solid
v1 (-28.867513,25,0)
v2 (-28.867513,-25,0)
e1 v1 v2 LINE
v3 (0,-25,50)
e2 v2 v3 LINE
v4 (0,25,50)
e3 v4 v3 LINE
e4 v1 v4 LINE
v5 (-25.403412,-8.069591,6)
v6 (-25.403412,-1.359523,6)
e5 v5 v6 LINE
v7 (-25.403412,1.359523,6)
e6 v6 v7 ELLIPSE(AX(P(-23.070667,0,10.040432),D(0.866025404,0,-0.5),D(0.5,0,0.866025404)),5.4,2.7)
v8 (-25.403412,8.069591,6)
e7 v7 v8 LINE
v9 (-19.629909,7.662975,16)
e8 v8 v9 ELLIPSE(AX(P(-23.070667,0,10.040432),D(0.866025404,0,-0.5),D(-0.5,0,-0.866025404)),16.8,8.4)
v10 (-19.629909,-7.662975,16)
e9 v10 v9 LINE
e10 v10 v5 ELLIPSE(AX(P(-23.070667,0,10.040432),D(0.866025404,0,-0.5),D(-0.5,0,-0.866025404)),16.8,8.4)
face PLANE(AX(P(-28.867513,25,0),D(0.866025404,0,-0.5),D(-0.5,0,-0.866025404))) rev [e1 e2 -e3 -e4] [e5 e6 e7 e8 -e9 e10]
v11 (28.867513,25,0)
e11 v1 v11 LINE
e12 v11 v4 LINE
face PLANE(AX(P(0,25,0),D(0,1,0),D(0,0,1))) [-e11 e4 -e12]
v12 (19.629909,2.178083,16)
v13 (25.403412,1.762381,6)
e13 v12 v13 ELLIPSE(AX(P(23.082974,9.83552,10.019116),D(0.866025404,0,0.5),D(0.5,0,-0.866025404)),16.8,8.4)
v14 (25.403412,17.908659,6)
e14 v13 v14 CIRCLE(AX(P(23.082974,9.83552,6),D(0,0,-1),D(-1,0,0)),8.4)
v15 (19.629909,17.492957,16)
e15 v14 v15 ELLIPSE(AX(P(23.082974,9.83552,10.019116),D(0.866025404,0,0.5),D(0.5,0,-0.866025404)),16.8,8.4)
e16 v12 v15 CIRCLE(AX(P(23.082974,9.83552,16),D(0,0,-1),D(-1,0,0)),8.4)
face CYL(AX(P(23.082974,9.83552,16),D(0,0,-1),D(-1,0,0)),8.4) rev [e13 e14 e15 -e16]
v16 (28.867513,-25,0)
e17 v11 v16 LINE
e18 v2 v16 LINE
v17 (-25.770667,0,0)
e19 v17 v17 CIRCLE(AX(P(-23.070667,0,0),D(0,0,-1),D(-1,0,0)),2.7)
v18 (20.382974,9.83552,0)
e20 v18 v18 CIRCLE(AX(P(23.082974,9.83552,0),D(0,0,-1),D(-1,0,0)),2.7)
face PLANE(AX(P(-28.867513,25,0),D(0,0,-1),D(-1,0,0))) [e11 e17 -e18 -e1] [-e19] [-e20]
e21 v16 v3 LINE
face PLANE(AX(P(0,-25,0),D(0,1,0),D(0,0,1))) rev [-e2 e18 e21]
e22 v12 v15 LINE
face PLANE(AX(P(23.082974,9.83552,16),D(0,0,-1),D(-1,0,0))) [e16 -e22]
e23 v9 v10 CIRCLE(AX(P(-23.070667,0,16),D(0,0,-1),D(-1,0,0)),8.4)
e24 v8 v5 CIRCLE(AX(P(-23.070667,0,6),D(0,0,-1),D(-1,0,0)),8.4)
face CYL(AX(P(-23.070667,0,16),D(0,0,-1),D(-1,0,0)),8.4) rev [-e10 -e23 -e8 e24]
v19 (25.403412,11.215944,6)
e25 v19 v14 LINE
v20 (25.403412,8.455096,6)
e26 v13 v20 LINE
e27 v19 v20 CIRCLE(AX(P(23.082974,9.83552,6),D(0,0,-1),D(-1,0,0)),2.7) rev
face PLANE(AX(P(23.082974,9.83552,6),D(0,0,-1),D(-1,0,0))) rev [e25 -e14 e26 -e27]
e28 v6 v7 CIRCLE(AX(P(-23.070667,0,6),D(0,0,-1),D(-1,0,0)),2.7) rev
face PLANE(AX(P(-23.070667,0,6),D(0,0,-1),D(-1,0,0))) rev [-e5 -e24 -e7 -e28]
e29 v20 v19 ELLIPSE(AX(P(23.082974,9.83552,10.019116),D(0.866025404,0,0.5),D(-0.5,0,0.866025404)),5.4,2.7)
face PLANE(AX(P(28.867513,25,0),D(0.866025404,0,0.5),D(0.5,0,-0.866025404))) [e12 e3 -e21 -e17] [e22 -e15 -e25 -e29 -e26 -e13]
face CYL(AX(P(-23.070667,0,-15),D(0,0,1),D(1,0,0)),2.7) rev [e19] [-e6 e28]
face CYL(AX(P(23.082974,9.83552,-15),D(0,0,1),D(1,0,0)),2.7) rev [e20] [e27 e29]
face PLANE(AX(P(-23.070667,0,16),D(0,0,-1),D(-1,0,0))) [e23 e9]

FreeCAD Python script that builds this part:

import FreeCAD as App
import Part
import Sketcher

V = App.Vector
Q = App.Units.Quantity

doc = App.newDocument("Part")
params = doc.addObject("Spreadsheet::Sheet", "Params")
for row, (alias, value) in enumerate([
    ("pad1_length", "50 mm"),
    ("sketch2_diameter", "5.4 mm"),
    ("pocket1_length", "30 mm"),
    ("sketch3_diameter", "16.8 mm"),
    ("pocket2_length", "10 mm"),
], start=1):
    params.set(f"A{row}", alias)
    params.set(f"B{row}", "=" + value)
    params.setAlias(f"B{row}", alias)

body = doc.addObject("PartDesign::Body", "Body")

# Sketch on XZ plane
sketch1 = doc.addObject("Sketcher::SketchObject", "Sketch")
body.addObject(sketch1)
sketch1.AttachmentSupport = (doc.XZ_Plane, [""])
sketch1.MapMode = "FlatFace"
sketch1.addGeometry(Part.LineSegment(V(29, 0, 0), V(-29, 0, 0)), False)
sketch1.addGeometry(Part.LineSegment(V(-29, 0, 0), V(0, 50, 0)), False)
sketch1.addGeometry(Part.LineSegment(V(0, 50, 0), V(29, 0, 0)), False)
sketch1.addConstraint(Sketcher.Constraint("Coincident", 0, 2, 1, 1))
sketch1.addConstraint(Sketcher.Constraint("Coincident", 1, 2, 2, 1))
sketch1.addConstraint(Sketcher.Constraint("Coincident", 2, 2, 0, 1))
sketch1.addConstraint(Sketcher.Constraint("Horizontal", 0))
sketch1.addConstraint(Sketcher.Constraint("Symmetric", 0, 2, 2, 2, -1, 1))
sketch1.addConstraint(Sketcher.Constraint("PointOnObject", 1, 2, -2))
sketch1.addConstraint(Sketcher.Constraint("Angle", 1, Q("60 deg")))
sketch1.addConstraint(Sketcher.Constraint("DistanceY", -1, 1, 1, 2, 50.0))
pad1 = doc.addObject("PartDesign::Pad", "Pad")
body.addObject(pad1)
pad1.Profile = sketch1
pad1.setExpression("Length", "Params.pad1_length")
pad1.Midplane = True

# Sketch on XY plane
sketch2 = doc.addObject("Sketcher::SketchObject", "Sketch001")
body.addObject(sketch2)
sketch2.AttachmentSupport = (doc.XY_Plane, [""])
sketch2.MapMode = "FlatFace"
sketch2.addGeometry(Part.Circle(V(-23.1, 0, 0), V(0, 0, 1), 2.7), False)
sketch2.addGeometry(Part.Circle(V(23.1, 9.8, 0), V(0, 0, 1), 2.7), False)
sketch2.addConstraint(Sketcher.Constraint("Equal", 0, 1))
sketch2.addConstraint(Sketcher.Constraint("PointOnObject", 0, 3, -1))
sketch2.addConstraint(Sketcher.Constraint("Diameter", 0, 5.4))
sketch2.addConstraint(Sketcher.Constraint("DistanceY", -1, 1, 1, 3, 9.83552))
sketch2.addConstraint(Sketcher.Constraint("DistanceX", 0, 3, 1, 3, 46.153642))
sketch2.addConstraint(Sketcher.Constraint("DistanceX", 0, 3, -1, 1, 23.070667))
sketch2.setExpression("Constraints[2]", "Params.sketch2_diameter")
pocket1 = doc.addObject("PartDesign::Pocket", "Pocket")
body.addObject(pocket1)
pocket1.Profile = sketch2
pocket1.setExpression("Length", "Params.pocket1_length")
pocket1.Midplane = True

# Sketch on XY plane
sketch3 = doc.addObject("Sketcher::SketchObject", "Sketch002")
body.addObject(sketch3)
sketch3.AttachmentSupport = (doc.XY_Plane, [""])
sketch3.MapMode = "FlatFace"
sketch3.AttachmentOffset = App.Placement(V(0, 0, 6), App.Rotation())
sketch3.addGeometry(Part.Circle(V(23, 10, 0), V(0, 0, 1), 8), False)
sketch3.addGeometry(Part.Circle(V(-23, 0, 0), V(0, 0, 1), 8), False)
sketch3.addConstraint(Sketcher.Constraint("Equal", 0, 1))
sketch3.addConstraint(Sketcher.Constraint("PointOnObject", 1, 3, -1))
sketch3.addConstraint(Sketcher.Constraint("Diameter", 0, 16.8))
sketch3.addConstraint(Sketcher.Constraint("DistanceY", -1, 1, 0, 3, 9.83552))
sketch3.addConstraint(Sketcher.Constraint("DistanceX", 1, 3, 0, 3, 46.153642))
sketch3.addConstraint(Sketcher.Constraint("DistanceX", -1, 1, 0, 3, 23.082974))
sketch3.setExpression("Constraints[2]", "Params.sketch3_diameter")
pocket2 = doc.addObject("PartDesign::Pocket", "Pocket001")
body.addObject(pocket2)
pocket2.Profile = sketch3
pocket2.setExpression("Length", "Params.pocket2_length")
pocket2.Reversed = True

doc.recompute()
